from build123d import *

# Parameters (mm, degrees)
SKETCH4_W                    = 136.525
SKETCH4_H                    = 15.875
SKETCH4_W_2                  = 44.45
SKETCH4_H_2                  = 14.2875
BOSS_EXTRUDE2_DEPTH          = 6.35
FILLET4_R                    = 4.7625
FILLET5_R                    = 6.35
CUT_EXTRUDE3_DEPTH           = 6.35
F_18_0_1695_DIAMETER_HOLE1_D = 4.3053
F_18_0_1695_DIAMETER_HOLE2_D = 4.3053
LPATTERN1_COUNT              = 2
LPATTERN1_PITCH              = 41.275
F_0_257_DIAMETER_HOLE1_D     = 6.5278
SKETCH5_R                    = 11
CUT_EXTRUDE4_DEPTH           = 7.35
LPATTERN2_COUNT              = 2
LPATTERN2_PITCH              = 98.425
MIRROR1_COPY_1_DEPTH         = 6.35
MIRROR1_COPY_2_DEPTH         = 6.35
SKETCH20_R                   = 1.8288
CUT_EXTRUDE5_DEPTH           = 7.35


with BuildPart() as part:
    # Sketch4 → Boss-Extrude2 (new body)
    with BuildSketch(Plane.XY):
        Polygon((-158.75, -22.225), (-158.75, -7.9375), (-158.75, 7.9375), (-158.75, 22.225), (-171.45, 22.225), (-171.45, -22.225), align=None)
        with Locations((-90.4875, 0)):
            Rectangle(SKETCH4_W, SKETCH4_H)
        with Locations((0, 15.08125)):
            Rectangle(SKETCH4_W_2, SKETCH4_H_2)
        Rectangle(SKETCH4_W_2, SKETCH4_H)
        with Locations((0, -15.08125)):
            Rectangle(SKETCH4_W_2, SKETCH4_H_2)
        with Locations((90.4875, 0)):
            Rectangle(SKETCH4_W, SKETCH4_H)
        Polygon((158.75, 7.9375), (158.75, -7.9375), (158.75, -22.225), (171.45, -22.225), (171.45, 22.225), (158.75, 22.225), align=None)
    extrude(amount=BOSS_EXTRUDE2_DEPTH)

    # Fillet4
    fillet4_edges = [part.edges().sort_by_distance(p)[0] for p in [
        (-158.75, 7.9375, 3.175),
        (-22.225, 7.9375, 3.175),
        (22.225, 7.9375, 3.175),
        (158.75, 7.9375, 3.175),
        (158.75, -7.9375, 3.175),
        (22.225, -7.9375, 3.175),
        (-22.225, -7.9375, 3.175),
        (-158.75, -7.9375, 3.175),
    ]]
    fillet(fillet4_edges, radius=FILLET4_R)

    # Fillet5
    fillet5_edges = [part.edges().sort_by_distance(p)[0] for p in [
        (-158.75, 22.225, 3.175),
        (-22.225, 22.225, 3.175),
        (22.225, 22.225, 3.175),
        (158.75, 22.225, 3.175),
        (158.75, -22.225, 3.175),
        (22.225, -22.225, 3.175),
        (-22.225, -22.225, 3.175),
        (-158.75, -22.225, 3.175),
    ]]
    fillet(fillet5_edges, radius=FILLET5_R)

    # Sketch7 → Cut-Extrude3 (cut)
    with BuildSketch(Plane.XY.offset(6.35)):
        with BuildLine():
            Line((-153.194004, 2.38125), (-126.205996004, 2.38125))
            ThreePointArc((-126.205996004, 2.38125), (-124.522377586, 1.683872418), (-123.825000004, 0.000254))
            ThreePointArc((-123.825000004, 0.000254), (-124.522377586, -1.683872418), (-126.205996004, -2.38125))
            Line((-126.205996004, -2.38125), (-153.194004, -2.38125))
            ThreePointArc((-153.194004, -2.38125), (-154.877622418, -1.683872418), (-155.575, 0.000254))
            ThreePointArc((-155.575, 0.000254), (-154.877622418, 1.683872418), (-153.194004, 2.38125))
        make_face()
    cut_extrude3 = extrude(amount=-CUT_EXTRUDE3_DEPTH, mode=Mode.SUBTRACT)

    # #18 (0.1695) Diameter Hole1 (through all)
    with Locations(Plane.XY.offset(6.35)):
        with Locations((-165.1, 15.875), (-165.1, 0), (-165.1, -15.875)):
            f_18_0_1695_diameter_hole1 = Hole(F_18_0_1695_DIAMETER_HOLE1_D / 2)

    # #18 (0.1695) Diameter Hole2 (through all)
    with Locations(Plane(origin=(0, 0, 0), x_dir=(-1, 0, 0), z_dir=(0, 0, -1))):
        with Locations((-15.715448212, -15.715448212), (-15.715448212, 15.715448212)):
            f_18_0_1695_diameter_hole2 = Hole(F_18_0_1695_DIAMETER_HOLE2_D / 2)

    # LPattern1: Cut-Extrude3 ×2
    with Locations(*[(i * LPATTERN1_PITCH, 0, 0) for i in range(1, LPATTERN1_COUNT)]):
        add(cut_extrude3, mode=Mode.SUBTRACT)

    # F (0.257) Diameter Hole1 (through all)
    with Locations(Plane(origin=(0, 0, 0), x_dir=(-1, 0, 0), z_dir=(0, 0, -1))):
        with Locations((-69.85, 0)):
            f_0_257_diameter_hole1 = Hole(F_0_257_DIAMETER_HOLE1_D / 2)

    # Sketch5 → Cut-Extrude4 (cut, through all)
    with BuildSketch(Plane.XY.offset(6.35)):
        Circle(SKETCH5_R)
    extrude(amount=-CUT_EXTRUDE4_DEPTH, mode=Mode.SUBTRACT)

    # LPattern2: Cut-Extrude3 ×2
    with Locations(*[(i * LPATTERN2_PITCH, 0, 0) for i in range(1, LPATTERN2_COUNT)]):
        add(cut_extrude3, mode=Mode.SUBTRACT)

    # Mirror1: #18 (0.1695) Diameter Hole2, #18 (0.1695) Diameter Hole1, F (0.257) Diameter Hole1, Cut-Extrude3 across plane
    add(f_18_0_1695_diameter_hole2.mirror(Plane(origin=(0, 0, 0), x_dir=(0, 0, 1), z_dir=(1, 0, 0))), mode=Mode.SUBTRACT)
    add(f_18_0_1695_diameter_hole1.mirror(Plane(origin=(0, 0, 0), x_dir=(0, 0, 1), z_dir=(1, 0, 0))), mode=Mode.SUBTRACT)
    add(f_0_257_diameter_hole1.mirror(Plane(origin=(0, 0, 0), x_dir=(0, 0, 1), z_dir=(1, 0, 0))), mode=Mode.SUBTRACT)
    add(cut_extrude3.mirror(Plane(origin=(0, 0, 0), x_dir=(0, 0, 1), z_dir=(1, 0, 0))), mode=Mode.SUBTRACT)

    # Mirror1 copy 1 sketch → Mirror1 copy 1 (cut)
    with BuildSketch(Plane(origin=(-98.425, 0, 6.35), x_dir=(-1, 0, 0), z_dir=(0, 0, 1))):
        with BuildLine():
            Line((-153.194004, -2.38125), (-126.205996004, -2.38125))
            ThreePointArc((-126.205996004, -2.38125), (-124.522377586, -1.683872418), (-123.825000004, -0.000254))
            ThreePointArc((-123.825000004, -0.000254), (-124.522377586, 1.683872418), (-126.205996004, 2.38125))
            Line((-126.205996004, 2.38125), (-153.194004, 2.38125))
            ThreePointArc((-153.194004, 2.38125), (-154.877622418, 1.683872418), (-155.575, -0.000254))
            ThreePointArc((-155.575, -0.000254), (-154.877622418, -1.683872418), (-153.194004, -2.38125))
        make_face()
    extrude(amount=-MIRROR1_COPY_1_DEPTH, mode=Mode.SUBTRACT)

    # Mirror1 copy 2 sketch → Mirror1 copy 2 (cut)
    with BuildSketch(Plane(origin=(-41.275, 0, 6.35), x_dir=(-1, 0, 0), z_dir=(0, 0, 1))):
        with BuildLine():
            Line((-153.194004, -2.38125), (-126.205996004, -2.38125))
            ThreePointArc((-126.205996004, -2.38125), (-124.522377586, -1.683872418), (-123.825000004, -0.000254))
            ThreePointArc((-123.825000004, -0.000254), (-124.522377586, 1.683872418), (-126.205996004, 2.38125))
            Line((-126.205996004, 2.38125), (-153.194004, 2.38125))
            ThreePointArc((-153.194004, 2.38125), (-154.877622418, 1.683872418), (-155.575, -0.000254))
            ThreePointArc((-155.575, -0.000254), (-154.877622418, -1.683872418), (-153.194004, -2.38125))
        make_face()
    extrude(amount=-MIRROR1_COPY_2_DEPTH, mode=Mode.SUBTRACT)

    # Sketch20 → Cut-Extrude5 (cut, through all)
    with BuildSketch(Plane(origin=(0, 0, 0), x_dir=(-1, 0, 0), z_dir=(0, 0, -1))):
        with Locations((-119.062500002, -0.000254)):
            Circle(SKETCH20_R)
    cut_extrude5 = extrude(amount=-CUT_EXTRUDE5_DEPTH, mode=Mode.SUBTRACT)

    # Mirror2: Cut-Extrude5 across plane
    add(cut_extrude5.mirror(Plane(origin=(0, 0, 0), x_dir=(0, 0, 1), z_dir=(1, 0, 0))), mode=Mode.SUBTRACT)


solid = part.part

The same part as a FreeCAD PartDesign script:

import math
import FreeCAD as App
import Part
import Sketcher

V = App.Vector
Q = App.Units.Quantity


def edges_at(feature, points):
    """Names of the edges that pass closest to the given points."""
    edges = feature.Shape.Edges
    near = lambda p: min(range(len(edges)), key=lambda i: edges[i].distToShape(Part.Vertex(*p))[0])
    return sorted({f"Edge{near(p) + 1}" for p in points})

doc = App.newDocument("Part")
body = doc.addObject("PartDesign::Body", "Body")

# Sketch on XY plane
sketch1 = doc.addObject("Sketcher::SketchObject", "Sketch")
body.addObject(sketch1)
sketch1.AttachmentSupport = (doc.XY_Plane, [""])
sketch1.MapMode = "FlatFace"
sketch1.addGeometry(Part.LineSegment(V(-159, -22, 0), V(-159, -8, 0)), False)
sketch1.addGeometry(Part.LineSegment(V(-159, -8, 0), V(-22, -8, 0)), False)
sketch1.addGeometry(Part.LineSegment(V(-22, -8, 0), V(-22, -22, 0)), False)
sketch1.addGeometry(Part.LineSegment(V(-22, -22, 0), V(22, -22, 0)), False)
sketch1.addGeometry(Part.LineSegment(V(22, -22, 0), V(22, -8, 0)), False)
sketch1.addGeometry(Part.LineSegment(V(22, -8, 0), V(159, -8, 0)), False)
sketch1.addGeometry(Part.LineSegment(V(159, -8, 0), V(159, -22, 0)), False)
sketch1.addGeometry(Part.LineSegment(V(159, -22, 0), V(171, -22, 0)), False)
sketch1.addGeometry(Part.LineSegment(V(171, -22, 0), V(171, 22, 0)), False)
sketch1.addGeometry(Part.LineSegment(V(171, 22, 0), V(159, 22, 0)), False)
sketch1.addGeometry(Part.LineSegment(V(159, 22, 0), V(159, 8, 0)), False)
sketch1.addGeometry(Part.LineSegment(V(159, 8, 0), V(22, 8, 0)), False)
sketch1.addGeometry(Part.LineSegment(V(22, 8, 0), V(22, 22, 0)), False)
sketch1.addGeometry(Part.LineSegment(V(22, 22, 0), V(-22, 22, 0)), False)
sketch1.addGeometry(Part.LineSegment(V(-22, 22, 0), V(-22, 8, 0)), False)
sketch1.addGeometry(Part.LineSegment(V(-22, 8, 0), V(-159, 8, 0)), False)
sketch1.addGeometry(Part.LineSegment(V(-159, 8, 0), V(-159, 22, 0)), False)
sketch1.addGeometry(Part.LineSegment(V(-159, 22, 0), V(-171, 22, 0)), False)
sketch1.addGeometry(Part.LineSegment(V(-171, 22, 0), V(-171, -22, 0)), False)
sketch1.addGeometry(Part.LineSegment(V(-171, -22, 0), V(-159, -22, 0)), False)
sketch1.addConstraint(Sketcher.Constraint("Coincident", 0, 2, 1, 1))
sketch1.addConstraint(Sketcher.Constraint("Coincident", 1, 2, 2, 1))
sketch1.addConstraint(Sketcher.Constraint("Coincident", 2, 2, 3, 1))
sketch1.addConstraint(Sketcher.Constraint("Coincident", 3, 2, 4, 1))
sketch1.addConstraint(Sketcher.Constraint("Coincident", 4, 2, 5, 1))
sketch1.addConstraint(Sketcher.Constraint("Coincident", 5, 2, 6, 1))
sketch1.addConstraint(Sketcher.Constraint("Coincident", 6, 2, 7, 1))
sketch1.addConstraint(Sketcher.Constraint("Coincident", 7, 2, 8, 1))
sketch1.addConstraint(Sketcher.Constraint("Coincident", 8, 2, 9, 1))
sketch1.addConstraint(Sketcher.Constraint("Coincident", 9, 2, 10, 1))
sketch1.addConstraint(Sketcher.Constraint("Coincident", 10, 2, 11, 1))
sketch1.addConstraint(Sketcher.Constraint("Coincident", 11, 2, 12, 1))
sketch1.addConstraint(Sketcher.Constraint("Coincident", 12, 2, 13, 1))
sketch1.addConstraint(Sketcher.Constraint("Coincident", 13, 2, 14, 1))
sketch1.addConstraint(Sketcher.Constraint("Coincident", 14, 2, 15, 1))
sketch1.addConstraint(Sketcher.Constraint("Coincident", 15, 2, 16, 1))
sketch1.addConstraint(Sketcher.Constraint("Coincident", 16, 2, 17, 1))
sketch1.addConstraint(Sketcher.Constraint("Coincident", 17, 2, 18, 1))
sketch1.addConstraint(Sketcher.Constraint("Coincident", 18, 2, 19, 1))
sketch1.addConstraint(Sketcher.Constraint("Coincident", 19, 2, 0, 1))
sketch1.addConstraint(Sketcher.Constraint("Vertical", 0))
sketch1.addConstraint(Sketcher.Constraint("Horizontal", 1))
sketch1.addConstraint(Sketcher.Constraint("Vertical", 2))
sketch1.addConstraint(Sketcher.Constraint("Horizontal", 3))
sketch1.addConstraint(Sketcher.Constraint("Vertical", 4))
sketch1.addConstraint(Sketcher.Constraint("Horizontal", 5))
sketch1.addConstraint(Sketcher.Constraint("Vertical", 6))
sketch1.addConstraint(Sketcher.Constraint("Horizontal", 7))
sketch1.addConstraint(Sketcher.Constraint("Vertical", 8))
sketch1.addConstraint(Sketcher.Constraint("Horizontal", 9))
sketch1.addConstraint(Sketcher.Constraint("Vertical", 10))
sketch1.addConstraint(Sketcher.Constraint("Horizontal", 11))
sketch1.addConstraint(Sketcher.Constraint("Vertical", 12))
sketch1.addConstraint(Sketcher.Constraint("Horizontal", 13))
sketch1.addConstraint(Sketcher.Constraint("Vertical", 14))
sketch1.addConstraint(Sketcher.Constraint("Horizontal", 15))
sketch1.addConstraint(Sketcher.Constraint("Vertical", 16))
sketch1.addConstraint(Sketcher.Constraint("Horizontal", 17))
sketch1.addConstraint(Sketcher.Constraint("Vertical", 18))
sketch1.addConstraint(Sketcher.Constraint("Horizontal", 19))
sketch1.addConstraint(Sketcher.Constraint("Symmetric", 0, 2, 10, 2, -1, 1))
sketch1.addConstraint(Sketcher.Constraint("Symmetric", 2, 2, 12, 2, -1, 1))
sketch1.addConstraint(Sketcher.Constraint("Symmetric", 4, 2, 14, 2, -1, 1))
sketch1.addConstraint(Sketcher.Constraint("Symmetric", 6, 2, 16, 2, -1, 1))
sketch1.addConstraint(Sketcher.Constraint("Symmetric", 8, 2, 18, 2, -1, 1))
sketch1.addConstraint(Sketcher.Constraint("Symmetric", 1, 2, 4, 2, -2))
sketch1.addConstraint(Sketcher.Constraint("Symmetric", 9, 2, 16, 2, -2))
sketch1.addConstraint(Sketcher.Constraint("Horizontal", 3, 2, 6, 2))
sketch1.addConstraint(Sketcher.Constraint("Equal", 13, 8))
sketch1.addConstraint(Sketcher.Constraint("DistanceX", 7, 1, 7, 2, Q("0.5 in")))
sketch1.addConstraint(Sketcher.Constraint("DistanceX", 3, 1, 3, 2, Q("1.75 in")))
sketch1.addConstraint(Sketcher.Constraint("DistanceX", 0, 2, 5, 2, Q("12.5 in")))
sketch1.addConstraint(Sketcher.Constraint("DistanceY", 0, 1, 0, 2, Q("0.5625 in")))
pad1 = doc.addObject("PartDesign::Pad", "Pad")
body.addObject(pad1)
pad1.Profile = sketch1
pad1.Length = Q("0.25 in")
doc.recompute()

fillet = doc.addObject("PartDesign::Fillet", "Fillet")
body.addObject(fillet)
fillet.Base = (pad1, edges_at(pad1, [
    (-158.75, 7.938, 3.175),
    (-22.225, 7.938, 3.175),
    (22.225, 7.938, 3.175),
    (158.75, 7.938, 3.175),
    (158.75, -7.938, 3.175),
    (22.225, -7.938, 3.175),
    (-22.225, -7.938, 3.175),
    (-158.75, -7.938, 3.175),
]))
fillet.Radius = Q("0.1875 in")
doc.recompute()

fillet2 = doc.addObject("PartDesign::Fillet", "Fillet001")
body.addObject(fillet2)
fillet2.Base = (fillet, edges_at(fillet, [
    (-158.75, 22.225, 3.175),
    (-22.225, 22.225, 3.175),
    (22.225, 22.225, 3.175),
    (158.75, 22.225, 3.175),
    (158.75, -22.225, 3.175),
    (22.225, -22.225, 3.175),
    (-22.225, -22.225, 3.175),
    (-158.75, -22.225, 3.175),
]))
fillet2.Radius = Q("0.25 in")

# Sketch on XY plane
sketch2 = doc.addObject("Sketcher::SketchObject", "Sketch001")
body.addObject(sketch2)
sketch2.AttachmentSupport = (doc.XY_Plane, [""])
sketch2.MapMode = "FlatFace"
sketch2.AttachmentOffset = App.Placement(V(0, 0, 0.25 * 25.4), App.Rotation())
sketch2.addGeometry(Part.LineSegment(V(-126.2, 2.4, 0), V(-153.2, 2.4, 0)), False)
sketch2.addGeometry(Part.ArcOfCircle(Part.Circle(V(-153.2, 0, 0), V(0, 0, 1), 2.4), math.radians(90), math.radians(180)), False)
sketch2.addGeometry(Part.ArcOfCircle(Part.Circle(V(-153.2, 0, 0), V(0, 0, 1), 2.4), math.radians(180), math.radians(270)), False)
sketch2.addGeometry(Part.LineSegment(V(-153.2, -2.4, 0), V(-126.2, -2.4, 0)), False)
sketch2.addGeometry(Part.ArcOfCircle(Part.Circle(V(-126.2, 0, 0), V(0, 0, 1), 2.4), math.radians(-90), math.radians(0)), False)
sketch2.addGeometry(Part.ArcOfCircle(Part.Circle(V(-126.2, 0, 0), V(0, 0, 1), 2.4), math.radians(0), math.radians(90)), False)
sketch2.addConstraint(Sketcher.Constraint("Tangent", 0, 2, 1, 1))
sketch2.addConstraint(Sketcher.Constraint("Coincident", 1, 2, 2, 1))
sketch2.addConstraint(Sketcher.Constraint("Tangent", 2, 2, 3, 1))
sketch2.addConstraint(Sketcher.Constraint("Tangent", 3, 2, 4, 1))
sketch2.addConstraint(Sketcher.Constraint("Coincident", 4, 2, 5, 1))
sketch2.addConstraint(Sketcher.Constraint("Tangent", 5, 2, 0, 1))
sketch2.addConstraint(Sketcher.Constraint("Horizontal", 0))
sketch2.addConstraint(Sketcher.Constraint("Horizontal", 3))
sketch2.addConstraint(Sketcher.Constraint("Equal", 1, 2))
sketch2.addConstraint(Sketcher.Constraint("Equal", 2, 4))
sketch2.addConstraint(Sketcher.Constraint("Equal", 4, 5))
sketch2.addConstraint(Sketcher.Constraint("Horizontal", 5, 3, 1, 2))
sketch2.addConstraint(Sketcher.Constraint("Horizontal", 1, 2, 4, 2))
sketch2.addConstraint(Sketcher.Constraint("DistanceY", -1, 1, 0, 2, Q("0.09375 in")))
sketch2.addConstraint(Sketcher.Constraint("DistanceX", 1, 2, -1, 1, Q("6.125 in")))
sketch2.addConstraint(Sketcher.Constraint("DistanceY", 2, 2, -1, 1, Q("0.09375 in")))
sketch2.addConstraint(Sketcher.Constraint("DistanceX", 4, 2, -1, 1, Q("4.875 in")))
sketch2.addConstraint(Sketcher.Constraint("Radius", 1, 2.380996))
pocket1 = doc.addObject("PartDesign::Pocket", "Pocket")
body.addObject(pocket1)
pocket1.Profile = sketch2
pocket1.Length = Q("0.25 in")

# Sketch on XY plane
sketch3 = doc.addObject("Sketcher::SketchObject", "Sketch002")
body.addObject(sketch3)
sketch3.AttachmentSupport = (doc.XY_Plane, [""])
sketch3.MapMode = "FlatFace"
sketch3.AttachmentOffset = App.Placement(V(0, 0, 0.25 * 25.4), App.Rotation())
sketch3.addGeometry(Part.Circle(V(-165.1, 15.9, 0), V(0, 0, 1), 2.2), False)
sketch3.addGeometry(Part.Circle(V(-165.1, 0, 0), V(0, 0, 1), 2.2), False)
sketch3.addGeometry(Part.Circle(V(-165.1, -15.9, 0), V(0, 0, 1), 2.2), False)
sketch3.addConstraint(Sketcher.Constraint("Equal", 0, 1))
sketch3.addConstraint(Sketcher.Constraint("Equal", 1, 2))
sketch3.addConstraint(Sketcher.Constraint("Symmetric", 0, 3, 2, 3, -1))
sketch3.addConstraint(Sketcher.Constraint("PointOnObject", 1, 3, -1))
sketch3.addConstraint(Sketcher.Constraint("Vertical", 0, 3, 1, 3))
sketch3.addConstraint(Sketcher.Constraint("Diameter", 0, Q("0.1695 in")))
sketch3.addConstraint(Sketcher.Constraint("DistanceX", 0, 3, -1, 1, Q("6.5 in")))
sketch3.addConstraint(Sketcher.Constraint("DistanceY", 2, 3, 0, 3, Q("1.25 in")))
doc.recompute()
hole = doc.addObject("PartDesign::Hole", "Hole")
body.addObject(hole)
hole.Profile = sketch3
hole.ThreadType = "None"
hole.Diameter = Q("0.1695 in")
hole.DepthType = "ThroughAll"

# Sketch on XY plane
sketch4 = doc.addObject("Sketcher::SketchObject", "Sketch003")
body.addObject(sketch4)
sketch4.AttachmentSupport = (doc.XY_Plane, [""])
sketch4.MapMode = "FlatFace"
sketch4.addGeometry(Part.Circle(V(15.7, -15.7, 0), V(0, 0, 1), 2.2), False)
sketch4.addGeometry(Part.Circle(V(15.7, 15.7, 0), V(0, 0, 1), 2.2), False)
sketch4.addConstraint(Sketcher.Constraint("Equal", 0, 1))
sketch4.addConstraint(Sketcher.Constraint("Symmetric", 0, 3, 1, 3, -1))
sketch4.addConstraint(Sketcher.Constraint("Diameter", 0, Q("0.1695 in")))
sketch4.addConstraint(Sketcher.Constraint("DistanceX", -1, 1, 0, 3, 15.715448))
sketch4.addConstraint(Sketcher.Constraint("DistanceY", 0, 3, -1, 1, 15.715448))
doc.recompute()
hole2 = doc.addObject("PartDesign::Hole", "Hole001")
body.addObject(hole2)
hole2.Profile = sketch4
hole2.ThreadType = "None"
hole2.Diameter = Q("0.1695 in")
hole2.DepthType = "ThroughAll"
hole2.Reversed = True
doc.recompute()

linearpattern = doc.addObject("PartDesign::LinearPattern", "LinearPattern")
body.addObject(linearpattern)
linearpattern.Originals = [pocket1]
linearpattern.Direction = (doc.X_Axis, [""])
linearpattern.Mode = "offset"
linearpattern.Offset = Q("1.625 in")
linearpattern.Occurrences = 2
body.Tip = linearpattern

# Sketch on XY plane
sketch5 = doc.addObject("Sketcher::SketchObject", "Sketch004")
body.addObject(sketch5)
sketch5.AttachmentSupport = (doc.XY_Plane, [""])
sketch5.MapMode = "FlatFace"
sketch5.addGeometry(Part.Circle(V(69.8, 0, 0), V(0, 0, 1), 3.3), False)
sketch5.addConstraint(Sketcher.Constraint("PointOnObject", 0, 3, -1))
sketch5.addConstraint(Sketcher.Constraint("Diameter", 0, Q("0.257 in")))
sketch5.addConstraint(Sketcher.Constraint("DistanceX", -1, 1, 0, 3, Q("2.75 in")))
doc.recompute()
hole3 = doc.addObject("PartDesign::Hole", "Hole002")
body.addObject(hole3)
hole3.Profile = sketch5
hole3.ThreadType = "None"
hole3.Diameter = Q("0.257 in")
hole3.DepthType = "ThroughAll"
hole3.Reversed = True

# Sketch on XY plane
sketch6 = doc.addObject("Sketcher::SketchObject", "Sketch005")
body.addObject(sketch6)
sketch6.AttachmentSupport = (doc.XY_Plane, [""])
sketch6.MapMode = "FlatFace"
sketch6.AttachmentOffset = App.Placement(V(0, 0, 0.25 * 25.4), App.Rotation())
sketch6.addGeometry(Part.Circle(V(0, 0, 0), V(0, 0, 1), 11), False)
sketch6.addConstraint(Sketcher.Constraint("Coincident", 0, 3, -1, 1))
sketch6.addConstraint(Sketcher.Constraint("Diameter", 0, 22.0))
pocket2 = doc.addObject("PartDesign::Pocket", "Pocket001")
body.addObject(pocket2)
pocket2.Profile = sketch6
pocket2.Type = "ThroughAll"
doc.recompute()

linearpattern2 = doc.addObject("PartDesign::LinearPattern", "LinearPattern001")
body.addObject(linearpattern2)
linearpattern2.Originals = [pocket1]
linearpattern2.Direction = (doc.X_Axis, [""])
linearpattern2.Mode = "offset"
linearpattern2.Offset = Q("3.875 in")
linearpattern2.Occurrences = 2
body.Tip = linearpattern2
doc.recompute()

mirrored = doc.addObject("PartDesign::Mirrored", "Mirrored")
body.addObject(mirrored)
mirrored.Originals = [hole2, hole, hole3, pocket1]
mirrored.MirrorPlane = (doc.YZ_Plane, [""])
body.Tip = mirrored

# Sketch on XY plane
sketch7 = doc.addObject("Sketcher::SketchObject", "Sketch006")
body.addObject(sketch7)
sketch7.AttachmentSupport = (doc.XY_Plane, [""])
sketch7.MapMode = "FlatFace"
sketch7.AttachmentOffset = App.Placement(V(0, 0, 0.25 * 25.4), App.Rotation())
sketch7.addGeometry(Part.LineSegment(V(54.8, 2.4, 0), V(27.8, 2.4, 0)), False)
sketch7.addGeometry(Part.ArcOfCircle(Part.Circle(V(27.8, 0, 0), V(0, 0, 1), 2.4), math.radians(90), math.radians(180)), False)
sketch7.addGeometry(Part.ArcOfCircle(Part.Circle(V(27.8, 0, 0), V(0, 0, 1), 2.4), math.radians(180), math.radians(270)), False)
sketch7.addGeometry(Part.LineSegment(V(27.8, -2.4, 0), V(54.8, -2.4, 0)), False)
sketch7.addGeometry(Part.ArcOfCircle(Part.Circle(V(54.8, 0, 0), V(0, 0, 1), 2.4), math.radians(-90), math.radians(0)), False)
sketch7.addGeometry(Part.ArcOfCircle(Part.Circle(V(54.8, 0, 0), V(0, 0, 1), 2.4), math.radians(0), math.radians(90)), False)
sketch7.addConstraint(Sketcher.Constraint("Tangent", 0, 2, 1, 1))
sketch7.addConstraint(Sketcher.Constraint("Coincident", 1, 2, 2, 1))
sketch7.addConstraint(Sketcher.Constraint("Tangent", 2, 2, 3, 1))
sketch7.addConstraint(Sketcher.Constraint("Tangent", 3, 2, 4, 1))
sketch7.addConstraint(Sketcher.Constraint("Coincident", 4, 2, 5, 1))
sketch7.addConstraint(Sketcher.Constraint("Tangent", 5, 2, 0, 1))
sketch7.addConstraint(Sketcher.Constraint("Horizontal", 0))
sketch7.addConstraint(Sketcher.Constraint("Horizontal", 3))
sketch7.addConstraint(Sketcher.Constraint("Equal", 1, 2))
sketch7.addConstraint(Sketcher.Constraint("Equal", 2, 4))
sketch7.addConstraint(Sketcher.Constraint("Equal", 4, 5))
sketch7.addConstraint(Sketcher.Constraint("Horizontal", 5, 3, 1, 2))
sketch7.addConstraint(Sketcher.Constraint("Horizontal", 1, 2, 4, 2))
sketch7.addConstraint(Sketcher.Constraint("DistanceX", -1, 1, 1, 2, Q("1 in")))
sketch7.addConstraint(Sketcher.Constraint("DistanceX", -1, 1, 4, 2, Q("2.25 in")))
sketch7.addConstraint(Sketcher.Constraint("DistanceY", -1, 1, 0, 2, Q("0.09375 in")))
sketch7.addConstraint(Sketcher.Constraint("DistanceY", 2, 2, -1, 1, Q("0.09375 in")))
sketch7.addConstraint(Sketcher.Constraint("Radius", 1, 2.380996))
pocket3 = doc.addObject("PartDesign::Pocket", "Pocket002")
body.addObject(pocket3)
pocket3.Profile = sketch7
pocket3.Length = Q("0.25 in")

# Sketch on XY plane
sketch8 = doc.addObject("Sketcher::SketchObject", "Sketch007")
body.addObject(sketch8)
sketch8.AttachmentSupport = (doc.XY_Plane, [""])
sketch8.MapMode = "FlatFace"
sketch8.AttachmentOffset = App.Placement(V(0, 0, 0.25 * 25.4), App.Rotation())
sketch8.addGeometry(Part.LineSegment(V(111.9, 2.4, 0), V(84.9, 2.4, 0)), False)
sketch8.addGeometry(Part.ArcOfCircle(Part.Circle(V(84.9, 0, 0), V(0, 0, 1), 2.4), math.radians(90), math.radians(180)), False)
sketch8.addGeometry(Part.ArcOfCircle(Part.Circle(V(84.9, 0, 0), V(0, 0, 1), 2.4), math.radians(180), math.radians(270)), False)
sketch8.addGeometry(Part.LineSegment(V(84.9, -2.4, 0), V(111.9, -2.4, 0)), False)
sketch8.addGeometry(Part.ArcOfCircle(Part.Circle(V(111.9, 0, 0), V(0, 0, 1), 2.4), math.radians(-90), math.radians(0)), False)
sketch8.addGeometry(Part.ArcOfCircle(Part.Circle(V(111.9, 0, 0), V(0, 0, 1), 2.4), math.radians(0), math.radians(90)), False)
sketch8.addConstraint(Sketcher.Constraint("Tangent", 0, 2, 1, 1))
sketch8.addConstraint(Sketcher.Constraint("Coincident", 1, 2, 2, 1))
sketch8.addConstraint(Sketcher.Constraint("Tangent", 2, 2, 3, 1))
sketch8.addConstraint(Sketcher.Constraint("Tangent", 3, 2, 4, 1))
sketch8.addConstraint(Sketcher.Constraint("Coincident", 4, 2, 5, 1))
sketch8.addConstraint(Sketcher.Constraint("Tangent", 5, 2, 0, 1))
sketch8.addConstraint(Sketcher.Constraint("Horizontal", 0))
sketch8.addConstraint(Sketcher.Constraint("Horizontal", 3))
sketch8.addConstraint(Sketcher.Constraint("Equal", 1, 2))
sketch8.addConstraint(Sketcher.Constraint("Equal", 2, 4))
sketch8.addConstraint(Sketcher.Constraint("Equal", 4, 5))
sketch8.addConstraint(Sketcher.Constraint("Horizontal", 5, 3, 1, 2))
sketch8.addConstraint(Sketcher.Constraint("Horizontal", 1, 2, 4, 2))
sketch8.addConstraint(Sketcher.Constraint("DistanceX", -1, 1, 4, 2, Q("4.5 in")))
sketch8.addConstraint(Sketcher.Constraint("DistanceX", -1, 1, 1, 2, Q("3.25 in")))
sketch8.addConstraint(Sketcher.Constraint("DistanceY", -1, 1, 0, 2, Q("0.09375 in")))
sketch8.addConstraint(Sketcher.Constraint("DistanceY", 2, 2, -1, 1, Q("0.09375 in")))
sketch8.addConstraint(Sketcher.Constraint("Radius", 1, 2.380996))
pocket4 = doc.addObject("PartDesign::Pocket", "Pocket003")
body.addObject(pocket4)
pocket4.Profile = sketch8
pocket4.Length = Q("0.25 in")

# Sketch on XY plane
sketch9 = doc.addObject("Sketcher::SketchObject", "Sketch008")
body.addObject(sketch9)
sketch9.AttachmentSupport = (doc.XY_Plane, [""])
sketch9.MapMode = "FlatFace"
sketch9.addGeometry(Part.Circle(V(119.1, 0, 0), V(0, 0, 1), 1.8), False)
sketch9.addConstraint(Sketcher.Constraint("Diameter", 0, Q("0.144 in")))
sketch9.addConstraint(Sketcher.Constraint("DistanceX", -1, 1, 0, 3, Q("4.6875 in")))
sketch9.addConstraint(Sketcher.Constraint("DistanceY", 0, 3, -1, 1, 0.000254))
pocket5 = doc.addObject("PartDesign::Pocket", "Pocket004")
body.addObject(pocket5)
pocket5.Profile = sketch9
pocket5.Type = "ThroughAll"
pocket5.Reversed = True
doc.recompute()

mirrored2 = doc.addObject("PartDesign::Mirrored", "Mirrored001")
body.addObject(mirrored2)
mirrored2.Originals = [pocket5]
mirrored2.MirrorPlane = (doc.YZ_Plane, [""])
body.Tip = mirrored2

doc.recompute()
